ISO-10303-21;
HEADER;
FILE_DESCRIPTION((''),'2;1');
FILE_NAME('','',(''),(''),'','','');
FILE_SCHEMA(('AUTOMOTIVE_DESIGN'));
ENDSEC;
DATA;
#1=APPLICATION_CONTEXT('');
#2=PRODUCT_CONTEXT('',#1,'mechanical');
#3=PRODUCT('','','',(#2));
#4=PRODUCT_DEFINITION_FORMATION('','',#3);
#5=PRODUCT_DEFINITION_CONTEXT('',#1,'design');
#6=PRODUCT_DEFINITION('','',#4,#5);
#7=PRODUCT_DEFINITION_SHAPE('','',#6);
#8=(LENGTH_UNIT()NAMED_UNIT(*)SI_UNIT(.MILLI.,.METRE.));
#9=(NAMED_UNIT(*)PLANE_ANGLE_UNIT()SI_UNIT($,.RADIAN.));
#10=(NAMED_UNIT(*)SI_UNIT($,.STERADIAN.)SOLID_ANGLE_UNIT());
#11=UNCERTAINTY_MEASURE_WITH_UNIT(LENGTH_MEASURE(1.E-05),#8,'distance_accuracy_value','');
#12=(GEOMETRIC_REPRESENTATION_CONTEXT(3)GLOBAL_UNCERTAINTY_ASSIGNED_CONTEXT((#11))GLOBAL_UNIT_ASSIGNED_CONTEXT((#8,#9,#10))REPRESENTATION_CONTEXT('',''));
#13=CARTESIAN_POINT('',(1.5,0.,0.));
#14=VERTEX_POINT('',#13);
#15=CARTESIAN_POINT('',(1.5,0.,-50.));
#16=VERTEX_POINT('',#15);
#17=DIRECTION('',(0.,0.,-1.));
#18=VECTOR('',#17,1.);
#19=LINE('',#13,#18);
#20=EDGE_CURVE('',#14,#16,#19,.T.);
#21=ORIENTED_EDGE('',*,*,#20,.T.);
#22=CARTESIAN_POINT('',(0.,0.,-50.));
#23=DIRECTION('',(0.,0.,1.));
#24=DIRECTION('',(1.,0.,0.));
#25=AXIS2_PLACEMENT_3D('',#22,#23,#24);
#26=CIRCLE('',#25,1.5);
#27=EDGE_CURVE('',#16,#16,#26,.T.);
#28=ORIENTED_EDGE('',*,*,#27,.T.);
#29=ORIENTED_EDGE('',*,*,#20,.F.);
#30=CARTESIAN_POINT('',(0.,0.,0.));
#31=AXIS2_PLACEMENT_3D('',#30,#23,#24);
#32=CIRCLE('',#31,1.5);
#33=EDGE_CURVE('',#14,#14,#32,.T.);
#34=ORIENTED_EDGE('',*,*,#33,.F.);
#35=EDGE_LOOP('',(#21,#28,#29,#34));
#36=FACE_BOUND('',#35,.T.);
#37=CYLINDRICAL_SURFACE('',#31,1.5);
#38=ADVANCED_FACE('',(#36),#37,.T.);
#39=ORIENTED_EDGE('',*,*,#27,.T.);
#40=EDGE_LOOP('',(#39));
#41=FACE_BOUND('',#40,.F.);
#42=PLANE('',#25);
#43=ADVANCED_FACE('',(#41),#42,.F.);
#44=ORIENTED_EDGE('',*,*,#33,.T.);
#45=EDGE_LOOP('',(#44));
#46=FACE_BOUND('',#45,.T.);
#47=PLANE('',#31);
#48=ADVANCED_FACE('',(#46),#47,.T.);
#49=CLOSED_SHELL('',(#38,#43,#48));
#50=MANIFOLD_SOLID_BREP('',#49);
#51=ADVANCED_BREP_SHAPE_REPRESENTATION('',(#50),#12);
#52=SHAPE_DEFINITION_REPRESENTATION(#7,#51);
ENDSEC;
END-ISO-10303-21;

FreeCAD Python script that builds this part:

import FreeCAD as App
import Part
import Sketcher

V = App.Vector

doc = App.newDocument("Part")
params = doc.addObject("Spreadsheet::Sheet", "Params")
for row, (alias, value) in enumerate([
    ("sketch1_diameter", "3 mm"),
    ("pad1_length", "50 mm"),
], start=1):
    params.set(f"A{row}", alias)
    params.set(f"B{row}", "=" + value)
    params.setAlias(f"B{row}", alias)

body = doc.addObject("PartDesign::Body", "Body")

# Sketch on XY plane
sketch1 = doc.addObject("Sketcher::SketchObject", "Sketch")
body.addObject(sketch1)
sketch1.AttachmentSupport = (doc.XY_Plane, [""])
sketch1.MapMode = "FlatFace"
sketch1.addGeometry(Part.Circle(V(0, 0, 0), V(0, 0, 1), 1.5), False)
sketch1.addConstraint([
    Sketcher.Constraint("Coincident", 0, 3, -1, 1),
    Sketcher.Constraint("Diameter", 0, 3.0),
])
sketch1.setExpression("Constraints[1]", "Params.sketch1_diameter")
pad1 = doc.addObject("PartDesign::Pad", "Pad")
body.addObject(pad1)
pad1.Profile = sketch1
pad1.setExpression("Length", "Params.pad1_length")
pad1.Reversed = True

doc.recompute()
